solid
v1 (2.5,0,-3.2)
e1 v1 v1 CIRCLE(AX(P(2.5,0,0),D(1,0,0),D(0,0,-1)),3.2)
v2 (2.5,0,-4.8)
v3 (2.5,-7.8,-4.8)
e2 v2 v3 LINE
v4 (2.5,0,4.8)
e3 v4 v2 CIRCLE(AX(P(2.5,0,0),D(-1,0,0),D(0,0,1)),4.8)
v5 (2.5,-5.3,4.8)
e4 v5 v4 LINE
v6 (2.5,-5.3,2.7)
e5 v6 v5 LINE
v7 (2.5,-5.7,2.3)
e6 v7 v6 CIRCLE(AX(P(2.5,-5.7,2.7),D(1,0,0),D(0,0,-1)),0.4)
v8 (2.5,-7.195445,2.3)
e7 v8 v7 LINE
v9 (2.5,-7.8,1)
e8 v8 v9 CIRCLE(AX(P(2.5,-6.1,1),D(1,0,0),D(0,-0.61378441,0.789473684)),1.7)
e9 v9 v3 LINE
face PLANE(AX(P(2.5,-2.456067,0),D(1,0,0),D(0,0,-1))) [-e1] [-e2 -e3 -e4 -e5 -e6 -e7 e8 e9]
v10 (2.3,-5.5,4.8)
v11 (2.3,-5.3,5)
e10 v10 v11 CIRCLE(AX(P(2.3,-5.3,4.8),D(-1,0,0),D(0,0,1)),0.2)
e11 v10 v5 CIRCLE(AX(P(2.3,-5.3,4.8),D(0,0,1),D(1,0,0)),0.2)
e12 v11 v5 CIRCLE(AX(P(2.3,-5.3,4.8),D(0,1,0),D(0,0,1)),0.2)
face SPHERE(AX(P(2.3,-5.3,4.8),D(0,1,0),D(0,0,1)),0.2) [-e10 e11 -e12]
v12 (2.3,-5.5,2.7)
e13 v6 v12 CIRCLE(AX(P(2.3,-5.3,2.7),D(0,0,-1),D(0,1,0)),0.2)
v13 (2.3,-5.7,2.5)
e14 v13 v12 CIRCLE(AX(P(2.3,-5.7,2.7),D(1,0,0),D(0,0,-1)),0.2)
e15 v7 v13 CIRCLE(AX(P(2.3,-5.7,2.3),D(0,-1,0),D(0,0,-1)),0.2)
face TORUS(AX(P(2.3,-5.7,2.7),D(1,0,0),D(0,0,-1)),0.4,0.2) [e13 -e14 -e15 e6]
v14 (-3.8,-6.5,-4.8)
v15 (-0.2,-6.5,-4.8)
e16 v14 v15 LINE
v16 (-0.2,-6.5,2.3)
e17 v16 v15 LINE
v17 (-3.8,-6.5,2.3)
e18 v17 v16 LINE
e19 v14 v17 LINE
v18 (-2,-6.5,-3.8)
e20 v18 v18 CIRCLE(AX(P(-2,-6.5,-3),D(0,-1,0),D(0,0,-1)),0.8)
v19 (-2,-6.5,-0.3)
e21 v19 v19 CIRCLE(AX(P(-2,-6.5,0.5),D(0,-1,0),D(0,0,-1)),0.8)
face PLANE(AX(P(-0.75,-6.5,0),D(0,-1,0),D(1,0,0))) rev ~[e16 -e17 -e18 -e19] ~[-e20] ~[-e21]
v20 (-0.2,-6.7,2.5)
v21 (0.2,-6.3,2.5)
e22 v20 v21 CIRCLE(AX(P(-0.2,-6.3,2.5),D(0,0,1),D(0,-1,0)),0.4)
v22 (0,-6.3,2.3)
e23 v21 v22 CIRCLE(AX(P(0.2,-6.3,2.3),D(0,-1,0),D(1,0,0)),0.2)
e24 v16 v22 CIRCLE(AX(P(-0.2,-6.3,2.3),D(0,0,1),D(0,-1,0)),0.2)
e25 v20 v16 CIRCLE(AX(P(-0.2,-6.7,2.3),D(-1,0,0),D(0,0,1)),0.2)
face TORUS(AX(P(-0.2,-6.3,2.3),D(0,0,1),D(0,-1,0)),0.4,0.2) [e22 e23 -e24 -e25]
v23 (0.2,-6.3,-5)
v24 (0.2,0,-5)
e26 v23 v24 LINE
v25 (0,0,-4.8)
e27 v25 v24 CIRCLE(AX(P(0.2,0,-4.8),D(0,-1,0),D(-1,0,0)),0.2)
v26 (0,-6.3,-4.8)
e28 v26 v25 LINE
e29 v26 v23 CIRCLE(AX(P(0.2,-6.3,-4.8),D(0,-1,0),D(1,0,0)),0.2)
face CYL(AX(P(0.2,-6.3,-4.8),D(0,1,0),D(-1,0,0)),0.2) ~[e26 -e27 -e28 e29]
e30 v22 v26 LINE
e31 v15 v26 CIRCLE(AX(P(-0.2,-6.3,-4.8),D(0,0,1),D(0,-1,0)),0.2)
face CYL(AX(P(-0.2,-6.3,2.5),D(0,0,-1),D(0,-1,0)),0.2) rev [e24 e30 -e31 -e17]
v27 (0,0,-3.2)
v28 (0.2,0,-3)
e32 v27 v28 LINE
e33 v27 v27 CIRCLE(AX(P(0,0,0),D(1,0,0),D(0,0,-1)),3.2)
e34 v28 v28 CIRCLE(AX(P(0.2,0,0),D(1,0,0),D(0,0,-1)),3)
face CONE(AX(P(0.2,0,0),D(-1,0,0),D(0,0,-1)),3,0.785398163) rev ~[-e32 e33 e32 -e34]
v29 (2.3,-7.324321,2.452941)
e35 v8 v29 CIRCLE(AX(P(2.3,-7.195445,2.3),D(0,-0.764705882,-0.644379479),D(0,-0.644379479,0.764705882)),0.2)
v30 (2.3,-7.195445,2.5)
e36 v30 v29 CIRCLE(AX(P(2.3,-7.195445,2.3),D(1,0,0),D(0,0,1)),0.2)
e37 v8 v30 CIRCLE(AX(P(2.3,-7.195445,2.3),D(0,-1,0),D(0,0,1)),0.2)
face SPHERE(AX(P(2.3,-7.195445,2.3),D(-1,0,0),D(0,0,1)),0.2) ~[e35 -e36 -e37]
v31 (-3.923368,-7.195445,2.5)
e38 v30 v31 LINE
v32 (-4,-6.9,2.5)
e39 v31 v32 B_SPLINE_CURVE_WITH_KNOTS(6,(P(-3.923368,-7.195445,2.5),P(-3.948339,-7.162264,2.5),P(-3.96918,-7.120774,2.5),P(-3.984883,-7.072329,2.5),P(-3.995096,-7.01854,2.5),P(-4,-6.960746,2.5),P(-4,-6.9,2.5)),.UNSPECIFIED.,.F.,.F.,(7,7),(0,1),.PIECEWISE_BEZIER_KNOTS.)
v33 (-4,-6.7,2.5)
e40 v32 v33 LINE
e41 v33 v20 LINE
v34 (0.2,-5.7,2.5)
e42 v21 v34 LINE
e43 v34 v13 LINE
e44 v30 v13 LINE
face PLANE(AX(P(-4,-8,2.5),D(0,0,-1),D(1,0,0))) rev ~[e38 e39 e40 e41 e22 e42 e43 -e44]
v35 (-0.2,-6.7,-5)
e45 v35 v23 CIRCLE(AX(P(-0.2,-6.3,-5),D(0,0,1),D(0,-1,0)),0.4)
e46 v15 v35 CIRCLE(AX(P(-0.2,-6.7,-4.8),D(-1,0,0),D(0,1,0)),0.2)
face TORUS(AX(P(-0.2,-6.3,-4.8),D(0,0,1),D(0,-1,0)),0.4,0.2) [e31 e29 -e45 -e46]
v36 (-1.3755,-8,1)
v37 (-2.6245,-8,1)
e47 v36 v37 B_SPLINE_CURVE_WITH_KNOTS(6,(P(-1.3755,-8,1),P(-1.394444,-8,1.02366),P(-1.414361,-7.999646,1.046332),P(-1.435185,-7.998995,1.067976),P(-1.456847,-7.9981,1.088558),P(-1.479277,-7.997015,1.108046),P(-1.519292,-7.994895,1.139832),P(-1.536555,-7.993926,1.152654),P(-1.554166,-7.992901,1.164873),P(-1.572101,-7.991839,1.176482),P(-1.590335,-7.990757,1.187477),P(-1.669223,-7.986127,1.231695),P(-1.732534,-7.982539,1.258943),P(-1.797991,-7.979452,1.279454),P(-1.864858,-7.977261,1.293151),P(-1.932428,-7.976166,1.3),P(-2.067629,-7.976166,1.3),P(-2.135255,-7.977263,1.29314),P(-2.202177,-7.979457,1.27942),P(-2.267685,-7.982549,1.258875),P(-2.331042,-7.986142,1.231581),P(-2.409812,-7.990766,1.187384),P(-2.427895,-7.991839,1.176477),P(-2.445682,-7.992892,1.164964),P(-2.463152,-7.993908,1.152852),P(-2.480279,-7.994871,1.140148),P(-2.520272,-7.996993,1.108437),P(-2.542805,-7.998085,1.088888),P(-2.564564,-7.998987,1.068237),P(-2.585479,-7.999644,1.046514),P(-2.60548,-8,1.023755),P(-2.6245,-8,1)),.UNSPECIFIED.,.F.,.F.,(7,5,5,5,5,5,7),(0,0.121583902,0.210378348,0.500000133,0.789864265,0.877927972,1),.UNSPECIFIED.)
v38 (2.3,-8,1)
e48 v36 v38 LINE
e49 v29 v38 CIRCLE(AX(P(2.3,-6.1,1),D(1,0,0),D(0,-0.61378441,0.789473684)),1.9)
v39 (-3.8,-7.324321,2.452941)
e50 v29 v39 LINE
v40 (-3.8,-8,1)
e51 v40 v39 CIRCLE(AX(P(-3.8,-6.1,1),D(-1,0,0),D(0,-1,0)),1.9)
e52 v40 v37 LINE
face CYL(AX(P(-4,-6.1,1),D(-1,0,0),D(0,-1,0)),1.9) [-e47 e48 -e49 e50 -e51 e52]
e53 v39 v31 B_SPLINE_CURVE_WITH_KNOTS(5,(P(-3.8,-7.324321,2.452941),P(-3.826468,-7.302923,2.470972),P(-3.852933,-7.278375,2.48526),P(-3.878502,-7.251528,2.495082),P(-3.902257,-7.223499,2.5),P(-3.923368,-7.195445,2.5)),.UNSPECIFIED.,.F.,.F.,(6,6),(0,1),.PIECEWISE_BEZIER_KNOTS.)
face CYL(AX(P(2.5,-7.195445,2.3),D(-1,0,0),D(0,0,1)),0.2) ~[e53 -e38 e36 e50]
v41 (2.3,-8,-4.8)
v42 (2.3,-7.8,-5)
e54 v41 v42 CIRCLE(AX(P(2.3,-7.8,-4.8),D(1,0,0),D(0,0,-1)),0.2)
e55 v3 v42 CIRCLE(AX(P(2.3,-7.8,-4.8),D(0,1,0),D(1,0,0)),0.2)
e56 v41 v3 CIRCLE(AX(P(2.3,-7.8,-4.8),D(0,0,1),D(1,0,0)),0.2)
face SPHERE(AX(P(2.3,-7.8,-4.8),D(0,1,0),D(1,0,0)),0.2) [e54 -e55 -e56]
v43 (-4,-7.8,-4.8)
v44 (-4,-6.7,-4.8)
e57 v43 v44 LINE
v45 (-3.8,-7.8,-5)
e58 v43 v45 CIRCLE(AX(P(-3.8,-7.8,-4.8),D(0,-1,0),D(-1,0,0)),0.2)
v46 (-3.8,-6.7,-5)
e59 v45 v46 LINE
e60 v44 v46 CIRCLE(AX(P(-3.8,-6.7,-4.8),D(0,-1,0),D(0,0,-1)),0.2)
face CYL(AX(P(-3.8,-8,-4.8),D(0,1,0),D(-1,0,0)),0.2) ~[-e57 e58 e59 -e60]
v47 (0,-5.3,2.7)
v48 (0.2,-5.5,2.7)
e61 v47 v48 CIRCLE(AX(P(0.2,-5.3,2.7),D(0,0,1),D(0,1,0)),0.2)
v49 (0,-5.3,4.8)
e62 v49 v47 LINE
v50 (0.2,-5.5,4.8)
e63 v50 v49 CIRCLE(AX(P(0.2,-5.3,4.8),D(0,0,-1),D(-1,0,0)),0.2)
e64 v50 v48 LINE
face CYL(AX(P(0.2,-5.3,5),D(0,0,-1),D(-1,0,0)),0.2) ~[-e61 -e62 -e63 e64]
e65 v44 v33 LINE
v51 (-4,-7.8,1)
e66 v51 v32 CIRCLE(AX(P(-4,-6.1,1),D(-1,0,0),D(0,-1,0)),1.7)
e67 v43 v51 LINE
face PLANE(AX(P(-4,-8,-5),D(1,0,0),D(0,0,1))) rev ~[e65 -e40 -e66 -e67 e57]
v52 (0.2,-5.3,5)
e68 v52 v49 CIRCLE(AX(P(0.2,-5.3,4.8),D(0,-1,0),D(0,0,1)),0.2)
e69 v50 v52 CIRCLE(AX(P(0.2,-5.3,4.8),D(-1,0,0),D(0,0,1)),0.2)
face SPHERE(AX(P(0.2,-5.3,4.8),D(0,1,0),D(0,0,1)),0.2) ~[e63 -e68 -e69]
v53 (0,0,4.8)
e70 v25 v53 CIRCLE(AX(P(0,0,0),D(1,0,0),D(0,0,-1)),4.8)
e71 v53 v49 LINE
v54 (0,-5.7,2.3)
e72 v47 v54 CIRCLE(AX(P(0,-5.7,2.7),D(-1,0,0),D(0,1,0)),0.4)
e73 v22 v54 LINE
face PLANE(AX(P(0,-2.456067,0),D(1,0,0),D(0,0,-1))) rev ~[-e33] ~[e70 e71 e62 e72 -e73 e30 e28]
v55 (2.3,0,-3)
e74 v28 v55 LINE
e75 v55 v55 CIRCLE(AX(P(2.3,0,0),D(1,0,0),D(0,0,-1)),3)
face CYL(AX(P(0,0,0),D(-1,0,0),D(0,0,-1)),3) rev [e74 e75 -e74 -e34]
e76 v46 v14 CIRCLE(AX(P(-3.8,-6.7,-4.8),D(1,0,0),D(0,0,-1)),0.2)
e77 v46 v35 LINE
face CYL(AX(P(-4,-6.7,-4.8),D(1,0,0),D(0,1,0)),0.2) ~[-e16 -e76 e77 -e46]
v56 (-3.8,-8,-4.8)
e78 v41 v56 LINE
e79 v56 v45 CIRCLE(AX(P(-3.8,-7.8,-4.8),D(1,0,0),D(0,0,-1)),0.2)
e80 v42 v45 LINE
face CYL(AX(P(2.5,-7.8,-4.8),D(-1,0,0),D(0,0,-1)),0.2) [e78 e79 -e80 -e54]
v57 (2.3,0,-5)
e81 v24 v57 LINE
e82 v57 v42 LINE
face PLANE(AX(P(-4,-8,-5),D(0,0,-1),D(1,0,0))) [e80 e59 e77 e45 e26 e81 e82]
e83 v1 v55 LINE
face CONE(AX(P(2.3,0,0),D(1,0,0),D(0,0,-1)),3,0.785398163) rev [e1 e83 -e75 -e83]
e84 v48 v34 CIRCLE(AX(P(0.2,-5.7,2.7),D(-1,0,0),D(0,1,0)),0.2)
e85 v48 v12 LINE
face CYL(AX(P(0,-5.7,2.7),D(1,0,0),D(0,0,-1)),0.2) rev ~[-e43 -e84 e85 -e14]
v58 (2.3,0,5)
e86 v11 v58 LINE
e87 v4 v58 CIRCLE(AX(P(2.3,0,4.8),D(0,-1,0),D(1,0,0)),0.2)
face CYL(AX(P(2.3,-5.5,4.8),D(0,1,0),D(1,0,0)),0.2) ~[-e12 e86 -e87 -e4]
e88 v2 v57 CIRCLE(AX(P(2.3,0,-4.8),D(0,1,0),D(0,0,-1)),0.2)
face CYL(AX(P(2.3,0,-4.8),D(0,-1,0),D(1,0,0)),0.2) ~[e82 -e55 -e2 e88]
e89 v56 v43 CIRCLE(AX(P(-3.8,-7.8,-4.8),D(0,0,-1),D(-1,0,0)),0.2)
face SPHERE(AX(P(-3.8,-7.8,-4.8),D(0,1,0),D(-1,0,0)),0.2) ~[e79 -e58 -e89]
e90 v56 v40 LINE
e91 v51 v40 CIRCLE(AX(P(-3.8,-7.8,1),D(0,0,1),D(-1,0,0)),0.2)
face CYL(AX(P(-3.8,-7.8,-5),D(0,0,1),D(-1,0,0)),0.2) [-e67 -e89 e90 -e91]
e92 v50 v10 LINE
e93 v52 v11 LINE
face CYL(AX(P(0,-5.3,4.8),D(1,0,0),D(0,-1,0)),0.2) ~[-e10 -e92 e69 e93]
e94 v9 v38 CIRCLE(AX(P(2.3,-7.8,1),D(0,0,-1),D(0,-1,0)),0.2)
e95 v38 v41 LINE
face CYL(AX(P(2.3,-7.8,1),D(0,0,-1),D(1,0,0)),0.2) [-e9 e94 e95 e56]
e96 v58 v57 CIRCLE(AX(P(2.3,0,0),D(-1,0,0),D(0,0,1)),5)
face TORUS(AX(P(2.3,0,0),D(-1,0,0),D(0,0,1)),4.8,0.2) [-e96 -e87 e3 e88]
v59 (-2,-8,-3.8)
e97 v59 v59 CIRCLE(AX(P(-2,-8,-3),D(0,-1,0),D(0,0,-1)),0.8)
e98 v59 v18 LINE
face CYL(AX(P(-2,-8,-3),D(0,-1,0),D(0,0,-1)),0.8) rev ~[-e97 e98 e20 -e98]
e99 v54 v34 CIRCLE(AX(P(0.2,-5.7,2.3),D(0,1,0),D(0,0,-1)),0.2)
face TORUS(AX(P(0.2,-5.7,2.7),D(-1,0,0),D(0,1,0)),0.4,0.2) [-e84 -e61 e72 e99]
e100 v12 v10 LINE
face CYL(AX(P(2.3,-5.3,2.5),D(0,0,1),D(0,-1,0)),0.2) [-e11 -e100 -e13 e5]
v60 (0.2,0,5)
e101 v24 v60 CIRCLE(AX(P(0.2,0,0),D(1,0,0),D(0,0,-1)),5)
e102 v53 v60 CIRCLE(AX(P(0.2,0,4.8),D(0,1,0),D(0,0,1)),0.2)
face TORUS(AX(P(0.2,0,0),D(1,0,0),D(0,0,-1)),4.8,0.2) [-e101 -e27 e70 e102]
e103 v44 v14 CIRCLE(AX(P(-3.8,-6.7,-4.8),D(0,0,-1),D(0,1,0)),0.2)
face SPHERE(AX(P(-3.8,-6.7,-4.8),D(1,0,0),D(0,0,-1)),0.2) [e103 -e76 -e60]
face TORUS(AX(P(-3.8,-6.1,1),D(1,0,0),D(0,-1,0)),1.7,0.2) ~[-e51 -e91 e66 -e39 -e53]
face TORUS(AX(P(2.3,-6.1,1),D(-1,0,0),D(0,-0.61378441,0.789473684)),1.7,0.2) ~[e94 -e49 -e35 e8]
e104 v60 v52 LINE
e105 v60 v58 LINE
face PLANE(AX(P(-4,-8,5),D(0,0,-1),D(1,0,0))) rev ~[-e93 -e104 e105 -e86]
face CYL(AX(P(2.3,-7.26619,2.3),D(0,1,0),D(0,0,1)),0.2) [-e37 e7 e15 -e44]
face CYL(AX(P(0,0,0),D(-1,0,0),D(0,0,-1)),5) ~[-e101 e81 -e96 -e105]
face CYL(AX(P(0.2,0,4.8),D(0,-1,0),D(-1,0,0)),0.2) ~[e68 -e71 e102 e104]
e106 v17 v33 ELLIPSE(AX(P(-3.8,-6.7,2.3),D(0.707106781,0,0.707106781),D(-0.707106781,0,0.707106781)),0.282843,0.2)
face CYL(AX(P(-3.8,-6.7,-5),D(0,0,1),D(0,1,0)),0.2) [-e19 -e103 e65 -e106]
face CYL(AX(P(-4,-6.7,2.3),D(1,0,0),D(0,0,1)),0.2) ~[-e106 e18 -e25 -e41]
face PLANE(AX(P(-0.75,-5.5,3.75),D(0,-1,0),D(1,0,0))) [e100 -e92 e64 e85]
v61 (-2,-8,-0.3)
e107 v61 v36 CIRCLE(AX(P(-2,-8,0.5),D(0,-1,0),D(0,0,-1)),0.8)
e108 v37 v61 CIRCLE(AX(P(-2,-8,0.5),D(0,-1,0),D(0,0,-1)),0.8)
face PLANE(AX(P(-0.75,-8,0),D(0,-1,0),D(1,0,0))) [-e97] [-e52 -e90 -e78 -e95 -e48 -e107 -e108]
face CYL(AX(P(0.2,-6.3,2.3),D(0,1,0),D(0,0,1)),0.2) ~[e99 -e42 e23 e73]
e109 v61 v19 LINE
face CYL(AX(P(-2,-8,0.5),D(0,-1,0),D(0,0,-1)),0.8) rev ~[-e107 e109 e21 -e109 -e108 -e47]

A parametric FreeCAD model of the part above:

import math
import FreeCAD as App
import Part
import Sketcher

V = App.Vector
Q = App.Units.Quantity


def edges_at(feature, points):
    """Names of the edges that pass closest to the given points."""
    edges = feature.Shape.Edges
    near = lambda p: min(range(len(edges)), key=lambda i: edges[i].distToShape(Part.Vertex(*p))[0])
    return sorted({f"Edge{near(p) + 1}" for p in points})


def add_polygon(sketch, points):
    """Adds a closed chain of lines whose ends are joined by coincident constraints."""
    first, n = sketch.GeometryCount, len(points)
    for a, b in zip(points, points[1:] + points[:1]):
        sketch.addGeometry(Part.LineSegment(App.Vector(*a, 0), App.Vector(*b, 0)), False)
    for i in range(n):
        sketch.addConstraint(Sketcher.Constraint("Coincident", first + i, 2, first + (i + 1) % n, 1))

doc = App.newDocument("Part")
body = doc.addObject("PartDesign::Body", "Body")

sketch1 = doc.addObject("Sketcher::SketchObject", "Sketch")
body.addObject(sketch1)
sketch1.AttachmentSupport = (doc.YZ_Plane, [""])
sketch1.MapMode = "FlatFace"
sketch1.addGeometry(Part.LineSegment(V(0, 5, 0), V(-8, 5, 0)), False)
sketch1.addGeometry(Part.LineSegment(V(-8, 5, 0), V(-8, -5, 0)), False)
sketch1.addGeometry(Part.LineSegment(V(-8, -5, 0), V(0, -5, 0)), False)
sketch1.addGeometry(Part.ArcOfCircle(Part.Circle(V(0, 0, 0), V(0, 0, 1), 5), math.radians(-90), math.radians(90)), False)
sketch1.addGeometry(Part.Circle(V(0, 0, 0), V(0, 0, 1), 3), False)
sketch1.addConstraint(Sketcher.Constraint("Coincident", 0, 2, 1, 1))
sketch1.addConstraint(Sketcher.Constraint("Coincident", 1, 2, 2, 1))
sketch1.addConstraint(Sketcher.Constraint("Tangent", 2, 2, 3, 1))
sketch1.addConstraint(Sketcher.Constraint("Tangent", 3, 2, 0, 1))
sketch1.addConstraint(Sketcher.Constraint("Horizontal", 0))
sketch1.addConstraint(Sketcher.Constraint("Vertical", 1))
sketch1.addConstraint(Sketcher.Constraint("Horizontal", 2))
sketch1.addConstraint(Sketcher.Constraint("Coincident", 3, 3, -1, 1))
sketch1.addConstraint(Sketcher.Constraint("Coincident", 4, 3, -1, 1))
sketch1.addConstraint(Sketcher.Constraint("Diameter", 4, Q("6 mm")))
sketch1.addConstraint(Sketcher.Constraint("Radius", 3, Q("5 mm")))
sketch1.addConstraint(Sketcher.Constraint("DistanceX", 0, 2, 0, 1, Q("8 mm")))
pad1 = doc.addObject("PartDesign::Pad", "Pad")
body.addObject(pad1)
pad1.Profile = sketch1
pad1.Length = 2.5

sketch2 = doc.addObject("Sketcher::SketchObject", "Sketch001")
body.addObject(sketch2)
sketch2.AttachmentSupport = (doc.XZ_Plane, [""])
sketch2.MapMode = "FlatFace"
sketch2.AttachmentOffset = App.Placement(V(0, 0, 8), App.Rotation())
add_polygon(sketch2, [(-4, 5), (-4, -5), (2.5, -5), (2.5, 5)])
sketch2.addGeometry(Part.Circle(V(-2, -3, 0), V(0, 0, 1), 0.8), False)
sketch2.addGeometry(Part.Circle(V(-2, 0.5, 0), V(0, 0, 1), 0.8), False)
sketch2.addConstraint(Sketcher.Constraint("Vertical", 0))
sketch2.addConstraint(Sketcher.Constraint("Horizontal", 1))
sketch2.addConstraint(Sketcher.Constraint("Vertical", 2))
sketch2.addConstraint(Sketcher.Constraint("Horizontal", 3))
sketch2.addConstraint(Sketcher.Constraint("Equal", 4, 5))
sketch2.addConstraint(Sketcher.Constraint("Vertical", 4, 3, 5, 3))
sketch2.addConstraint(Sketcher.Constraint("Diameter", 4, Q("1.6 mm")))
sketch2.addConstraint(Sketcher.Constraint("DistanceY", 0, 2, 0, 1, Q("10 mm")))
sketch2.addConstraint(Sketcher.Constraint("DistanceX", 1, 1, 1, 2, Q("6.5 mm")))
sketch2.addConstraint(Sketcher.Constraint("DistanceX", 4, 3, -1, 1, Q("2 mm")))
sketch2.addConstraint(Sketcher.Constraint("DistanceY", 4, 3, -1, 1, Q("3 mm")))
sketch2.addConstraint(Sketcher.Constraint("DistanceX", 0, 2, -1, 1, Q("4 mm")))
sketch2.addConstraint(Sketcher.Constraint("DistanceY", 0, 2, -1, 1, Q("5 mm")))
sketch2.addConstraint(Sketcher.Constraint("DistanceY", -1, 1, 5, 3, Q("0.5 mm")))
pad2 = doc.addObject("PartDesign::Pad", "Pad001")
body.addObject(pad2)
pad2.Profile = sketch2
pad2.Length = 1.5
pad2.Reversed = True

sketch3 = doc.addObject("Sketcher::SketchObject", "Sketch002")
body.addObject(sketch3)
sketch3.AttachmentSupport = (doc.XZ_Plane, [""])
sketch3.MapMode = "FlatFace"
sketch3.AttachmentOffset = App.Placement(V(0, 0, 8), App.Rotation())
add_polygon(sketch3, [(-4, 5), (-4, 2.5), (2.5, 2.5), (2.5, 5)])
sketch3.addConstraint(Sketcher.Constraint("Vertical", 0))
sketch3.addConstraint(Sketcher.Constraint("Horizontal", 1))
sketch3.addConstraint(Sketcher.Constraint("Vertical", 2))
sketch3.addConstraint(Sketcher.Constraint("Horizontal", 3))
sketch3.addConstraint(Sketcher.Constraint("DistanceX", 1, 1, 1, 2, Q("6.5 mm")))
sketch3.addConstraint(Sketcher.Constraint("DistanceY", 0, 2, 0, 1, Q("2.5 mm")))
sketch3.addConstraint(Sketcher.Constraint("DistanceX", 0, 2, -1, 1, Q("4 mm")))
sketch3.addConstraint(Sketcher.Constraint("DistanceY", -1, 1, 2, 2, Q("5 mm")))
pocket1 = doc.addObject("PartDesign::Pocket", "Pocket")
body.addObject(pocket1)
pocket1.Profile = sketch3
pocket1.Length = 2.5

sketch4 = doc.addObject("Sketcher::SketchObject", "Sketch003")
body.addObject(sketch4)
sketch4.AttachmentSupport = (doc.YZ_Plane, [""])
sketch4.MapMode = "FlatFace"
sketch4.AttachmentOffset = App.Placement(V(0, 0, -4), App.Rotation())
sketch4.addGeometry(Part.LineSegment(V(-6, 3.28, 0), V(-6, 2.9, 0)), False)
sketch4.addGeometry(Part.ArcOfCircle(Part.Circle(V(-6.1, 1, 0), V(0, 0, 1), 1.9), math.radians(87), math.radians(180)), False)
sketch4.addGeometry(Part.LineSegment(V(-8, 1, 0), V(-8.33, 1, 0)), False)
sketch4.addGeometry(Part.LineSegment(V(-8.33, 1, 0), V(-8.33, 3.28, 0)), False)
sketch4.addGeometry(Part.LineSegment(V(-8.33, 3.28, 0), V(-6, 3.28, 0)), False)
sketch4.addConstraint(Sketcher.Constraint("Coincident", 0, 2, 1, 1))
sketch4.addConstraint(Sketcher.Constraint("Coincident", 1, 2, 2, 1))
sketch4.addConstraint(Sketcher.Constraint("Coincident", 2, 2, 3, 1))
sketch4.addConstraint(Sketcher.Constraint("Coincident", 3, 2, 4, 1))
sketch4.addConstraint(Sketcher.Constraint("Coincident", 4, 2, 0, 1))
sketch4.addConstraint(Sketcher.Constraint("Vertical", 0))
sketch4.addConstraint(Sketcher.Constraint("Horizontal", 2))
sketch4.addConstraint(Sketcher.Constraint("Vertical", 3))
sketch4.addConstraint(Sketcher.Constraint("Horizontal", 4))
sketch4.addConstraint(Sketcher.Constraint("Radius", 1, Q("1.9 mm")))
sketch4.addConstraint(Sketcher.Constraint("DistanceY", -1, 1, 1, 3, Q("1 mm")))
sketch4.addConstraint(Sketcher.Constraint("DistanceX", 0, 2, -1, 1, Q("6 mm")))
sketch4.addConstraint(Sketcher.Constraint("DistanceX", 1, 2, -1, 1, Q("8 mm")))
sketch4.addConstraint(Sketcher.Constraint("DistanceY", -1, 1, 1, 2, Q("1 mm")))
sketch4.addConstraint(Sketcher.Constraint("DistanceX", 2, 2, 2, 1, Q("0.325128 mm")))
sketch4.addConstraint(Sketcher.Constraint("DistanceY", 0, 2, 0, 1, Q("0.379687 mm")))
pocket2 = doc.addObject("PartDesign::Pocket", "Pocket001")
body.addObject(pocket2)
pocket2.Profile = sketch4
pocket2.Length = 6.5
pocket2.Reversed = True
doc.recompute()

fillet = doc.addObject("PartDesign::Fillet", "Fillet")
body.addObject(fillet)
fillet.Base = (pocket2, edges_at(pocket2, [(0, -6.5, -1.25)]))
fillet.Radius = 0.2
doc.recompute()

fillet2 = doc.addObject("PartDesign::Fillet", "Fillet001")
body.addObject(fillet2)
fillet2.Base = (fillet, edges_at(fillet, [
    (2.5, -4, -5),
    (-2.1, -6.5, -5),
    (-4, -7.25, -5),
    (2.5, 5, 0),
    (-4, -6.5, -1.25),
    (1.25, -5.5, 5),
    (-2.1, -6.5, 2.5),
    (1.25, -5.5, 2.5),
    (2.5, -6.383, 2.5),
    (2.5, -5.5, 3.75),
    (0, -5.5, 3.75),
    (0, -2.75, 5),
    (0, 5, 0),
    (-4, -8, -2),
    (2.5, -8, -2),
    (-0.75, -7.266, 2.5),
    (2.5, -7.807, 1.835),
    (-4, -7.807, 1.835),
    (2.5, -2.75, 5),
    (-0.75, -8, -5),
    (0, -5.9, 2.5),
    (0, -3.15, -5),
    (-0.059, -6.441, -5),
    (-0.059, -6.441, 2.5),
]))
fillet2.Radius = 0.2
doc.recompute()

chamfer = doc.addObject("PartDesign::Chamfer", "Chamfer")
body.addObject(chamfer)
chamfer.Base = (fillet2, edges_at(fillet2, [(0, 0, 3), (2.5, 0, 3)]))
chamfer.Size = 0.2

doc.recompute()
